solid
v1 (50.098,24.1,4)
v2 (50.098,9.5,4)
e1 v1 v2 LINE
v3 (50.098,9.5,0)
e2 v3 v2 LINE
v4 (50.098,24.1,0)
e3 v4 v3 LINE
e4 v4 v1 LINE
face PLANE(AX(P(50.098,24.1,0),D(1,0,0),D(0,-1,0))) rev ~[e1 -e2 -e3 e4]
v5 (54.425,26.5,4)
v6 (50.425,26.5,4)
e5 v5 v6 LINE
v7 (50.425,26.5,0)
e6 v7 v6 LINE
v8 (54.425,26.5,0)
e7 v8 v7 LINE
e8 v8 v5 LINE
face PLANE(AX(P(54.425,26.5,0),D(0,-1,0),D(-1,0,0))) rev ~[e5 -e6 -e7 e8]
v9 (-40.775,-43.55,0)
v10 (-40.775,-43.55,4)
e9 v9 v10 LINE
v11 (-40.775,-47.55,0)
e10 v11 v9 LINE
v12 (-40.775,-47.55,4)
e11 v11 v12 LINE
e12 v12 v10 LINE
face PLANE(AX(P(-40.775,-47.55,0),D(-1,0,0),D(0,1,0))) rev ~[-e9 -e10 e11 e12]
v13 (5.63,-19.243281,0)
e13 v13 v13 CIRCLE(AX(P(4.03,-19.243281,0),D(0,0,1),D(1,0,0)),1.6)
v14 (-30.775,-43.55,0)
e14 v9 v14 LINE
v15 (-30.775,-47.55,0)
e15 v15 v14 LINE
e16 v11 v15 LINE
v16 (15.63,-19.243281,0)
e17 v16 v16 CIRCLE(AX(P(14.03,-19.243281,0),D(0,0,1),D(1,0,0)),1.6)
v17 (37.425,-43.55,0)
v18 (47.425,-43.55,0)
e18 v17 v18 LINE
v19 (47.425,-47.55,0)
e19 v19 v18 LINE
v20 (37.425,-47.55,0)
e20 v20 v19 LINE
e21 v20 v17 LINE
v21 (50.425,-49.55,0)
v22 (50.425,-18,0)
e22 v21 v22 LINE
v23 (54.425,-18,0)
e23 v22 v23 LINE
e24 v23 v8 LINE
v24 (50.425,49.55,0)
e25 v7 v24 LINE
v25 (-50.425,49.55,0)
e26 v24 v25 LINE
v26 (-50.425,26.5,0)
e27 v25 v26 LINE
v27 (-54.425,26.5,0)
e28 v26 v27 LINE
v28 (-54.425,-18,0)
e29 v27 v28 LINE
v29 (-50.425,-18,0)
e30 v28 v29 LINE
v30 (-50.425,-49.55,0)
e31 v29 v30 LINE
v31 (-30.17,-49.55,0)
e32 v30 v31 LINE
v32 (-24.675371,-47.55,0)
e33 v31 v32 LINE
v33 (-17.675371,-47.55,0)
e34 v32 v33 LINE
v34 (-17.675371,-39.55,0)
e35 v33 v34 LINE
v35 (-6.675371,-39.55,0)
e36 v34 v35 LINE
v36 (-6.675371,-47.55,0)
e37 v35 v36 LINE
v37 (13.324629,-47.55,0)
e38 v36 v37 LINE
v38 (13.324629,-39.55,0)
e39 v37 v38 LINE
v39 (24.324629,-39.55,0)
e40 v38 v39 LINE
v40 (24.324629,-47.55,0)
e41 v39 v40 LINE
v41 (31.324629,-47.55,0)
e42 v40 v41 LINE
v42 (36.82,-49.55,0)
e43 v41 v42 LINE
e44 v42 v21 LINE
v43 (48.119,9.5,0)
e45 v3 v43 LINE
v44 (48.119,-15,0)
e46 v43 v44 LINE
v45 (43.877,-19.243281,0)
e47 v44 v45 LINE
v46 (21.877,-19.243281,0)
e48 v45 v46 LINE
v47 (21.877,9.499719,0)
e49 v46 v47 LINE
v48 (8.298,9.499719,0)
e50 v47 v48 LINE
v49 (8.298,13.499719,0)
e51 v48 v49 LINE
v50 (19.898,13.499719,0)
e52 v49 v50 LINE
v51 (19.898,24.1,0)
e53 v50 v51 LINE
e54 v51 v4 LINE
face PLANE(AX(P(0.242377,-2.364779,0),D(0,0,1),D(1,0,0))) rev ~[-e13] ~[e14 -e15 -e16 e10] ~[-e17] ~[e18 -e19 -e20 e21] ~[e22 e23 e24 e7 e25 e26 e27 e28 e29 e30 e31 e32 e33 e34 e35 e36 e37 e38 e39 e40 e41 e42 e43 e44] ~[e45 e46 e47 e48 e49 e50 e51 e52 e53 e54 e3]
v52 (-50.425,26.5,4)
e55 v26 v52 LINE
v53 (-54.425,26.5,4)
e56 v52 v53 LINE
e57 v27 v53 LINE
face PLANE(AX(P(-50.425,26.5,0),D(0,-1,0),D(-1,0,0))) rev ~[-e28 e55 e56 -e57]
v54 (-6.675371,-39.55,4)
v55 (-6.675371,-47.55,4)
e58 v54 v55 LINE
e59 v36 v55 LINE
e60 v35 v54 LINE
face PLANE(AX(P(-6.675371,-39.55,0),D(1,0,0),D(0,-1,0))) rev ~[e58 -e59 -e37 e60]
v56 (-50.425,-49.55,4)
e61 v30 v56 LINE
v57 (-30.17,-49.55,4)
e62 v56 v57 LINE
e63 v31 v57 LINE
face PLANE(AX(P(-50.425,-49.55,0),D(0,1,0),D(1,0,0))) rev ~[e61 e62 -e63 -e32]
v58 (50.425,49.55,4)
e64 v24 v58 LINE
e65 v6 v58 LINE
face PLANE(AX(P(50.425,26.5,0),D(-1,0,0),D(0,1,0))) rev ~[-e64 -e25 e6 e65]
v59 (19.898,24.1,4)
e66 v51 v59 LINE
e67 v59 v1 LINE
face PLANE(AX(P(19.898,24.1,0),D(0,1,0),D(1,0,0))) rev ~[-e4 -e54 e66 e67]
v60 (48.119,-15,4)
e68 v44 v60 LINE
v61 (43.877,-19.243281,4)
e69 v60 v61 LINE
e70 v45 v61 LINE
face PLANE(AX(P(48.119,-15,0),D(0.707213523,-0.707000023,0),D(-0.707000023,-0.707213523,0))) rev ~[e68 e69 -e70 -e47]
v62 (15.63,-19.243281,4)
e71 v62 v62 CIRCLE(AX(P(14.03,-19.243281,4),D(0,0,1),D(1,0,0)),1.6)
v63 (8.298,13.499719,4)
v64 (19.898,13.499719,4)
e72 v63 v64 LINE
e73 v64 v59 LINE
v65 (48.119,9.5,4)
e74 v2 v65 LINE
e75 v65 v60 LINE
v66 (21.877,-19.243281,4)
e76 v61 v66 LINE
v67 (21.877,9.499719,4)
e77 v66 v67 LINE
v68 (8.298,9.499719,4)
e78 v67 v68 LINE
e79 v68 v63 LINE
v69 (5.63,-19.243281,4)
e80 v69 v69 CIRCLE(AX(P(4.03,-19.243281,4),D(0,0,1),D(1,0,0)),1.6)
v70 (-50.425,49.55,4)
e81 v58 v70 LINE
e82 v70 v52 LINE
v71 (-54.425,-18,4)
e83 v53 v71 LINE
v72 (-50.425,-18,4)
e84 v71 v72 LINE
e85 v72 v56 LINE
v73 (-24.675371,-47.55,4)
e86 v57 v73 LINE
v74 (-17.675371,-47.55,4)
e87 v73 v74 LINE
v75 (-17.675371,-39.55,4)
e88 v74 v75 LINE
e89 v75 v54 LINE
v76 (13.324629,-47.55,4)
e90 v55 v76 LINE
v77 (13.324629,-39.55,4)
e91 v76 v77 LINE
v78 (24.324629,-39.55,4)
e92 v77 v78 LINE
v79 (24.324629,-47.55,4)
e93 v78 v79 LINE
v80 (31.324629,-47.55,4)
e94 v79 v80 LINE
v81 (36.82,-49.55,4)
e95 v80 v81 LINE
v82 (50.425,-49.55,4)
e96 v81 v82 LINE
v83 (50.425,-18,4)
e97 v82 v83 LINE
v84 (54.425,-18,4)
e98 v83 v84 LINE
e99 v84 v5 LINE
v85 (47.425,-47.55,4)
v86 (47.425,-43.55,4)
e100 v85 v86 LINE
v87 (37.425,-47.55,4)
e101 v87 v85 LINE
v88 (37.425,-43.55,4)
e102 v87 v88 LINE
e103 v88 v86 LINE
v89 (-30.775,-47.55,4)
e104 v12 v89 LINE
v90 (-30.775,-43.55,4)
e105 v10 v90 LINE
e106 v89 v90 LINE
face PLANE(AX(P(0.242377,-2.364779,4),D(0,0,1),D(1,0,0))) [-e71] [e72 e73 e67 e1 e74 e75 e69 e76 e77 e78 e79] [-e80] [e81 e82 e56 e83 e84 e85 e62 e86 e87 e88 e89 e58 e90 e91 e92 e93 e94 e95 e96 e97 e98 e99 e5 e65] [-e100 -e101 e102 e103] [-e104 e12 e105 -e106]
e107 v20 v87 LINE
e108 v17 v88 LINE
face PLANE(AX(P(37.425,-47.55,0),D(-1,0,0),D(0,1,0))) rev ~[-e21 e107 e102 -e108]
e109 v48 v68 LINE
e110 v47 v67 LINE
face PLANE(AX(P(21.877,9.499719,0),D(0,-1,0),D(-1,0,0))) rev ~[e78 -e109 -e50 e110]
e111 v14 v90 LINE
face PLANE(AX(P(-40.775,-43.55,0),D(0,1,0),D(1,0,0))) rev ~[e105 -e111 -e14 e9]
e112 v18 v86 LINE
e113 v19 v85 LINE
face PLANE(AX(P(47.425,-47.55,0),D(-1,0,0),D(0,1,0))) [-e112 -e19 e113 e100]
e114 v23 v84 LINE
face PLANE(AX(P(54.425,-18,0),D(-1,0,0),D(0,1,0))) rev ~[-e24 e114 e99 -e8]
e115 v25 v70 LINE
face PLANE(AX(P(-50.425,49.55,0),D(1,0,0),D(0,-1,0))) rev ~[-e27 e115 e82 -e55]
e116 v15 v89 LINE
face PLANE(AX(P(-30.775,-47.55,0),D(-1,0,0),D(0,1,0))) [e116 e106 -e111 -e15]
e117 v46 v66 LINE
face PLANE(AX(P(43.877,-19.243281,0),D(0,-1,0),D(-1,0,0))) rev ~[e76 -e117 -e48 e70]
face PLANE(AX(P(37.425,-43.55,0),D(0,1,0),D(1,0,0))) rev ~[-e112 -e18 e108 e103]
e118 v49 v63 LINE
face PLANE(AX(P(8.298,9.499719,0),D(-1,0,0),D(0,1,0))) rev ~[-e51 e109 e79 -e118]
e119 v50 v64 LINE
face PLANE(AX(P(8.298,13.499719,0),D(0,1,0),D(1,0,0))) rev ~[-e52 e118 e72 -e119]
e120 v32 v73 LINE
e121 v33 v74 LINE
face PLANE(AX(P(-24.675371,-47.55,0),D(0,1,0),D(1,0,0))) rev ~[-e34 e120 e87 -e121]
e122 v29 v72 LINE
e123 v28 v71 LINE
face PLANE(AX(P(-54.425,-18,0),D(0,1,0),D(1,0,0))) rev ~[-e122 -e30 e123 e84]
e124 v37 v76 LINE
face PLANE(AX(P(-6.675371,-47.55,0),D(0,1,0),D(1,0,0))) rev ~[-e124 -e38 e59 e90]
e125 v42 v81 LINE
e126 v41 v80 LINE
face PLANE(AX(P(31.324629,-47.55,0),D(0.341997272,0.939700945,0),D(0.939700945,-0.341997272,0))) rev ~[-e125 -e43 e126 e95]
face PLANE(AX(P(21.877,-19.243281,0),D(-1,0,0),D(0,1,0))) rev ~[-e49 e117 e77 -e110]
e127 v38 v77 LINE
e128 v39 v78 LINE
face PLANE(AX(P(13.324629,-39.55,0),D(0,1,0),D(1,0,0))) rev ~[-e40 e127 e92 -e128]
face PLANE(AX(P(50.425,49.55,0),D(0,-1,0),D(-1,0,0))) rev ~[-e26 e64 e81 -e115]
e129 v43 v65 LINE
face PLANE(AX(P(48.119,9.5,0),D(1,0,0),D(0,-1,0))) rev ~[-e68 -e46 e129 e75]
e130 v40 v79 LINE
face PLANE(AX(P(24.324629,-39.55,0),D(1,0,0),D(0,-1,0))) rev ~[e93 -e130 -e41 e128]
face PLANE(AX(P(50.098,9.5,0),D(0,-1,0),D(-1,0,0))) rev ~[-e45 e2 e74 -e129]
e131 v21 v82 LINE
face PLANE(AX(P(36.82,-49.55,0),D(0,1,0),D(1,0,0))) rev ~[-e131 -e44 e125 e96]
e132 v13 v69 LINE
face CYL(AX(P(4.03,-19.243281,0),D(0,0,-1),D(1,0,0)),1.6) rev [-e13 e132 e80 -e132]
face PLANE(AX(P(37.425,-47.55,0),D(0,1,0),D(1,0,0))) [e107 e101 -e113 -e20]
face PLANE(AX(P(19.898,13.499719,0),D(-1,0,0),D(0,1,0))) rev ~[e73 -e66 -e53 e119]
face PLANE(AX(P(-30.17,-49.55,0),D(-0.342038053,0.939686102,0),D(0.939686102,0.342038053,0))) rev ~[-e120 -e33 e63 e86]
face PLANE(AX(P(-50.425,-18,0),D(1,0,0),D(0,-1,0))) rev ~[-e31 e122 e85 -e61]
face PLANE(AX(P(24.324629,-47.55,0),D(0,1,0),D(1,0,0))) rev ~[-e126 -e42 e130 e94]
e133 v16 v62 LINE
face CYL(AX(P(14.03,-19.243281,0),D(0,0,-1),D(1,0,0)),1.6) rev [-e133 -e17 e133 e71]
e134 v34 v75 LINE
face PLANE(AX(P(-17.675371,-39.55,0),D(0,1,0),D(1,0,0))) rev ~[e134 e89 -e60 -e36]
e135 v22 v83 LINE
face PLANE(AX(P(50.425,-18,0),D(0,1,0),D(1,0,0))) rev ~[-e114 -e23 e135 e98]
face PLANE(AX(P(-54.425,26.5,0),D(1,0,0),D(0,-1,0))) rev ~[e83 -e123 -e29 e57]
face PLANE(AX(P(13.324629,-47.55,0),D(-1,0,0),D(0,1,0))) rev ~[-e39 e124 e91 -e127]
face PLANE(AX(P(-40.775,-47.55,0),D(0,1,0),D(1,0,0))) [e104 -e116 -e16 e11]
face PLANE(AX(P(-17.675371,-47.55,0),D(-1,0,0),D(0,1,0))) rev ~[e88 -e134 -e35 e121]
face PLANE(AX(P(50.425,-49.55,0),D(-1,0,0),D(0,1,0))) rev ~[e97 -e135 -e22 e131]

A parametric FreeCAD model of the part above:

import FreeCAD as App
import Part
import Sketcher
from FreeCAD import Vector
Q = App.Units.Quantity


def add_polygon(sketch, points):
    """Adds a closed chain of lines whose ends are joined by coincident constraints."""
    first, n = sketch.GeometryCount, len(points)
    for a, b in zip(points, points[1:] + points[:1]):
        sketch.addGeometry(Part.LineSegment(App.Vector(*a, 0), App.Vector(*b, 0)), False)
    for i in range(n):
        sketch.addConstraint(Sketcher.Constraint("Coincident", first + i, 2, first + (i + 1) % n, 1))

doc = App.newDocument("Part")
body = doc.addObject("PartDesign::Body", "Body")

sketch1 = body.newObject("Sketcher::SketchObject", "Sketch")
sketch1.AttachmentSupport = (doc.getObject("XY_Plane"), [""])
sketch1.MapMode = "FlatFace"
add_polygon(sketch1, [(50.4, 49.5), (-50.4, 49.5), (-50.4, 26.5), (-54.4, 26.5), (-54.4, -18), (-50.4, -18), (-50.4, -49.5), (-30.2, -49.5), (-24.7, -47.5), (-17.7, -47.5), (-17.7, -39.5), (-6.7, -39.5), (-6.7, -47.5), (13.3, -47.5), (13.3, -39.5), (24.3, -39.5), (24.3, -47.5), (31.3, -47.5), (36.8, -49.5), (50.4, -49.5), (50.4, -18), (54.4, -18), (54.4, 26.5), (50.4, 26.5)])
add_polygon(sketch1, [(-30.8, -47.5), (-40.8, -47.5), (-40.8, -43.5), (-30.8, -43.5)])
sketch1.addGeometry(Part.Circle(Vector(4, -19.2, 0), Vector(0, 0, 1), 1.6), False)
add_polygon(sketch1, [(47.4, -47.5), (37.4, -47.5), (37.4, -43.5), (47.4, -43.5)])
sketch1.addGeometry(Part.Circle(Vector(14, -19.2, 0), Vector(0, 0, 1), 1.6), False)
add_polygon(sketch1, [(8.3, 13.5), (19.9, 13.5), (19.9, 24.1), (50.1, 24.1), (50.1, 9.5), (48.1, 9.5), (48.1, -15), (43.9, -19.2), (21.9, -19.2), (21.9, 9.5), (8.3, 9.5)])
sketch1.addConstraint(Sketcher.Constraint("Horizontal", 0))
sketch1.addConstraint(Sketcher.Constraint("Vertical", 1))
sketch1.addConstraint(Sketcher.Constraint("Horizontal", 2))
sketch1.addConstraint(Sketcher.Constraint("Vertical", 3))
sketch1.addConstraint(Sketcher.Constraint("Horizontal", 4))
sketch1.addConstraint(Sketcher.Constraint("Vertical", 5))
sketch1.addConstraint(Sketcher.Constraint("Horizontal", 6))
sketch1.addConstraint(Sketcher.Constraint("Horizontal", 8))
sketch1.addConstraint(Sketcher.Constraint("Vertical", 9))
sketch1.addConstraint(Sketcher.Constraint("Horizontal", 10))
sketch1.addConstraint(Sketcher.Constraint("Vertical", 11))
sketch1.addConstraint(Sketcher.Constraint("Horizontal", 12))
sketch1.addConstraint(Sketcher.Constraint("Vertical", 13))
sketch1.addConstraint(Sketcher.Constraint("Horizontal", 14))
sketch1.addConstraint(Sketcher.Constraint("Vertical", 15))
sketch1.addConstraint(Sketcher.Constraint("Horizontal", 16))
sketch1.addConstraint(Sketcher.Constraint("Horizontal", 18))
sketch1.addConstraint(Sketcher.Constraint("Vertical", 19))
sketch1.addConstraint(Sketcher.Constraint("Horizontal", 20))
sketch1.addConstraint(Sketcher.Constraint("Vertical", 21))
sketch1.addConstraint(Sketcher.Constraint("Horizontal", 22))
sketch1.addConstraint(Sketcher.Constraint("Vertical", 23))
sketch1.addConstraint(Sketcher.Constraint("Horizontal", 24))
sketch1.addConstraint(Sketcher.Constraint("Vertical", 25))
sketch1.addConstraint(Sketcher.Constraint("Horizontal", 26))
sketch1.addConstraint(Sketcher.Constraint("Vertical", 27))
sketch1.addConstraint(Sketcher.Constraint("Horizontal", 29))
sketch1.addConstraint(Sketcher.Constraint("Vertical", 30))
sketch1.addConstraint(Sketcher.Constraint("Horizontal", 31))
sketch1.addConstraint(Sketcher.Constraint("Vertical", 32))
sketch1.addConstraint(Sketcher.Constraint("Horizontal", 34))
sketch1.addConstraint(Sketcher.Constraint("Vertical", 35))
sketch1.addConstraint(Sketcher.Constraint("Horizontal", 36))
sketch1.addConstraint(Sketcher.Constraint("Vertical", 37))
sketch1.addConstraint(Sketcher.Constraint("Horizontal", 38))
sketch1.addConstraint(Sketcher.Constraint("Vertical", 39))
sketch1.addConstraint(Sketcher.Constraint("Horizontal", 41))
sketch1.addConstraint(Sketcher.Constraint("Vertical", 42))
sketch1.addConstraint(Sketcher.Constraint("Horizontal", 43))
sketch1.addConstraint(Sketcher.Constraint("Vertical", 44))
sketch1.addConstraint(Sketcher.Constraint("Equal", 28, 33))
sketch1.addConstraint(Sketcher.Constraint("Symmetric", 0, 2, 18, 2, -1, 1))
sketch1.addConstraint(Sketcher.Constraint("Symmetric", 5, 2, 23, 2, -1, 1))
sketch1.addConstraint(Sketcher.Constraint("Symmetric", 4, 2, 19, 2, -2))
sketch1.addConstraint(Sketcher.Constraint("Symmetric", 2, 2, 21, 2, -2))
sketch1.addConstraint(Sketcher.Constraint("Horizontal", 28, 3, 33, 3))
sketch1.addConstraint(Sketcher.Constraint("Horizontal", 8, 2, 11, 2))
sketch1.addConstraint(Sketcher.Constraint("Horizontal", 10, 2, 13, 2))
sketch1.addConstraint(Sketcher.Constraint("Horizontal", 12, 2, 15, 2))
sketch1.addConstraint(Sketcher.Constraint("Horizontal", 16, 2, 24, 2))
sketch1.addConstraint(Sketcher.Constraint("Horizontal", 27, 2, 29, 2))
sketch1.addConstraint(Sketcher.Constraint("Horizontal", 26, 2, 30, 2))
sketch1.addConstraint(Sketcher.Constraint("Horizontal", 33, 3, 40, 2))
sketch1.addConstraint(Sketcher.Constraint("Equal", 10, 14))
sketch1.addConstraint(Sketcher.Constraint("Equal", 8, 16))
sketch1.addConstraint(Sketcher.Constraint("Equal", 26, 29))
sketch1.addConstraint(Sketcher.Constraint("Equal", 22, 25))
sketch1.addConstraint(Sketcher.Constraint("Equal", 32, 44))
sketch1.addConstraint(Sketcher.Constraint("Diameter", 28, Q("3.2 mm")))
sketch1.addConstraint(Sketcher.Constraint("DistanceX", 2, 2, 2, 1, Q("4 mm")))
sketch1.addConstraint(Sketcher.Constraint("DistanceX", 8, 1, 8, 2, Q("7 mm")))
sketch1.addConstraint(Sketcher.Constraint("DistanceX", 10, 1, 10, 2, Q("11 mm")))
sketch1.addConstraint(Sketcher.Constraint("DistanceX", 12, 1, 12, 2, Q("20 mm")))
sketch1.addConstraint(Sketcher.Constraint("DistanceX", 24, 2, 24, 1, Q("10 mm")))
sketch1.addConstraint(Sketcher.Constraint("DistanceX", 41, 2, 41, 1, Q("22 mm")))
sketch1.addConstraint(Sketcher.Constraint("DistanceY", 9, 1, 9, 2, Q("8 mm")))
sketch1.addConstraint(Sketcher.Constraint("Distance", 40, Q("6 mm")))
sketch1.addConstraint(Sketcher.Constraint("DistanceX", 34, 1, 34, 2, Q("11.6 mm")))
sketch1.addConstraint(Sketcher.Constraint("DistanceX", 36, 1, 36, 2, Q("30.2 mm")))
sketch1.addConstraint(Sketcher.Constraint("DistanceY", 3, 2, 3, 1, Q("44.5 mm")))
sketch1.addConstraint(Sketcher.Constraint("DistanceY", 37, 2, 37, 1, Q("14.6 mm")))
sketch1.addConstraint(Sketcher.Constraint("DistanceY", 39, 2, 39, 1, Q("24.5 mm")))
sketch1.addConstraint(Sketcher.Constraint("DistanceY", 3, 2, -1, 1, Q("18 mm")))
sketch1.addConstraint(Sketcher.Constraint("DistanceY", 39, 2, -1, 1, Q("15 mm")))
sketch1.addConstraint(Sketcher.Constraint("DistanceX", 28, 3, 33, 3, Q("10 mm")))
sketch1.addConstraint(Sketcher.Constraint("DistanceY", 6, 2, 7, 2, Q("2 mm")))
sketch1.addConstraint(Sketcher.Constraint("DistanceX", 29, 2, 18, 2, Q("13 mm")))
sketch1.addConstraint(Sketcher.Constraint("DistanceX", 0, 2, 0, 1, Q("100.85 mm")))
sketch1.addConstraint(Sketcher.Constraint("DistanceY", 1, 2, 1, 1, Q("23.05 mm")))
sketch1.addConstraint(Sketcher.Constraint("DistanceX", 6, 2, 28, 3, Q("34.2 mm")))
sketch1.addConstraint(Sketcher.Constraint("DistanceX", 6, 1, 6, 2, Q("20.255 mm")))
sketch1.addConstraint(Sketcher.Constraint("DistanceX", 18, 1, 18, 2, Q("13.605 mm")))
sketch1.addConstraint(Sketcher.Constraint("DistanceX", 38, 2, 38, 1, Q("1.979 mm")))
sketch1.addConstraint(Sketcher.Constraint("DistanceX", 43, 2, 43, 1, Q("13.579 mm")))
sketch1.addConstraint(Sketcher.Constraint("DistanceY", 42, 1, 42, 2, Q("28.743 mm")))
sketch1.addConstraint(Sketcher.Constraint("DistanceX", 5, 2, 24, 2, Q("9.65 mm")))
sketch1.addConstraint(Sketcher.Constraint("Distance", 17, Q("5.848 mm")))
sketch1.addConstraint(Sketcher.Constraint("DistanceX", -1, 1, 34, 2, Q("19.898 mm")))
pad1 = body.newObject("PartDesign::Pad", "Pad")
pad1.Profile = sketch1
pad1.Length = 4

doc.recompute()
